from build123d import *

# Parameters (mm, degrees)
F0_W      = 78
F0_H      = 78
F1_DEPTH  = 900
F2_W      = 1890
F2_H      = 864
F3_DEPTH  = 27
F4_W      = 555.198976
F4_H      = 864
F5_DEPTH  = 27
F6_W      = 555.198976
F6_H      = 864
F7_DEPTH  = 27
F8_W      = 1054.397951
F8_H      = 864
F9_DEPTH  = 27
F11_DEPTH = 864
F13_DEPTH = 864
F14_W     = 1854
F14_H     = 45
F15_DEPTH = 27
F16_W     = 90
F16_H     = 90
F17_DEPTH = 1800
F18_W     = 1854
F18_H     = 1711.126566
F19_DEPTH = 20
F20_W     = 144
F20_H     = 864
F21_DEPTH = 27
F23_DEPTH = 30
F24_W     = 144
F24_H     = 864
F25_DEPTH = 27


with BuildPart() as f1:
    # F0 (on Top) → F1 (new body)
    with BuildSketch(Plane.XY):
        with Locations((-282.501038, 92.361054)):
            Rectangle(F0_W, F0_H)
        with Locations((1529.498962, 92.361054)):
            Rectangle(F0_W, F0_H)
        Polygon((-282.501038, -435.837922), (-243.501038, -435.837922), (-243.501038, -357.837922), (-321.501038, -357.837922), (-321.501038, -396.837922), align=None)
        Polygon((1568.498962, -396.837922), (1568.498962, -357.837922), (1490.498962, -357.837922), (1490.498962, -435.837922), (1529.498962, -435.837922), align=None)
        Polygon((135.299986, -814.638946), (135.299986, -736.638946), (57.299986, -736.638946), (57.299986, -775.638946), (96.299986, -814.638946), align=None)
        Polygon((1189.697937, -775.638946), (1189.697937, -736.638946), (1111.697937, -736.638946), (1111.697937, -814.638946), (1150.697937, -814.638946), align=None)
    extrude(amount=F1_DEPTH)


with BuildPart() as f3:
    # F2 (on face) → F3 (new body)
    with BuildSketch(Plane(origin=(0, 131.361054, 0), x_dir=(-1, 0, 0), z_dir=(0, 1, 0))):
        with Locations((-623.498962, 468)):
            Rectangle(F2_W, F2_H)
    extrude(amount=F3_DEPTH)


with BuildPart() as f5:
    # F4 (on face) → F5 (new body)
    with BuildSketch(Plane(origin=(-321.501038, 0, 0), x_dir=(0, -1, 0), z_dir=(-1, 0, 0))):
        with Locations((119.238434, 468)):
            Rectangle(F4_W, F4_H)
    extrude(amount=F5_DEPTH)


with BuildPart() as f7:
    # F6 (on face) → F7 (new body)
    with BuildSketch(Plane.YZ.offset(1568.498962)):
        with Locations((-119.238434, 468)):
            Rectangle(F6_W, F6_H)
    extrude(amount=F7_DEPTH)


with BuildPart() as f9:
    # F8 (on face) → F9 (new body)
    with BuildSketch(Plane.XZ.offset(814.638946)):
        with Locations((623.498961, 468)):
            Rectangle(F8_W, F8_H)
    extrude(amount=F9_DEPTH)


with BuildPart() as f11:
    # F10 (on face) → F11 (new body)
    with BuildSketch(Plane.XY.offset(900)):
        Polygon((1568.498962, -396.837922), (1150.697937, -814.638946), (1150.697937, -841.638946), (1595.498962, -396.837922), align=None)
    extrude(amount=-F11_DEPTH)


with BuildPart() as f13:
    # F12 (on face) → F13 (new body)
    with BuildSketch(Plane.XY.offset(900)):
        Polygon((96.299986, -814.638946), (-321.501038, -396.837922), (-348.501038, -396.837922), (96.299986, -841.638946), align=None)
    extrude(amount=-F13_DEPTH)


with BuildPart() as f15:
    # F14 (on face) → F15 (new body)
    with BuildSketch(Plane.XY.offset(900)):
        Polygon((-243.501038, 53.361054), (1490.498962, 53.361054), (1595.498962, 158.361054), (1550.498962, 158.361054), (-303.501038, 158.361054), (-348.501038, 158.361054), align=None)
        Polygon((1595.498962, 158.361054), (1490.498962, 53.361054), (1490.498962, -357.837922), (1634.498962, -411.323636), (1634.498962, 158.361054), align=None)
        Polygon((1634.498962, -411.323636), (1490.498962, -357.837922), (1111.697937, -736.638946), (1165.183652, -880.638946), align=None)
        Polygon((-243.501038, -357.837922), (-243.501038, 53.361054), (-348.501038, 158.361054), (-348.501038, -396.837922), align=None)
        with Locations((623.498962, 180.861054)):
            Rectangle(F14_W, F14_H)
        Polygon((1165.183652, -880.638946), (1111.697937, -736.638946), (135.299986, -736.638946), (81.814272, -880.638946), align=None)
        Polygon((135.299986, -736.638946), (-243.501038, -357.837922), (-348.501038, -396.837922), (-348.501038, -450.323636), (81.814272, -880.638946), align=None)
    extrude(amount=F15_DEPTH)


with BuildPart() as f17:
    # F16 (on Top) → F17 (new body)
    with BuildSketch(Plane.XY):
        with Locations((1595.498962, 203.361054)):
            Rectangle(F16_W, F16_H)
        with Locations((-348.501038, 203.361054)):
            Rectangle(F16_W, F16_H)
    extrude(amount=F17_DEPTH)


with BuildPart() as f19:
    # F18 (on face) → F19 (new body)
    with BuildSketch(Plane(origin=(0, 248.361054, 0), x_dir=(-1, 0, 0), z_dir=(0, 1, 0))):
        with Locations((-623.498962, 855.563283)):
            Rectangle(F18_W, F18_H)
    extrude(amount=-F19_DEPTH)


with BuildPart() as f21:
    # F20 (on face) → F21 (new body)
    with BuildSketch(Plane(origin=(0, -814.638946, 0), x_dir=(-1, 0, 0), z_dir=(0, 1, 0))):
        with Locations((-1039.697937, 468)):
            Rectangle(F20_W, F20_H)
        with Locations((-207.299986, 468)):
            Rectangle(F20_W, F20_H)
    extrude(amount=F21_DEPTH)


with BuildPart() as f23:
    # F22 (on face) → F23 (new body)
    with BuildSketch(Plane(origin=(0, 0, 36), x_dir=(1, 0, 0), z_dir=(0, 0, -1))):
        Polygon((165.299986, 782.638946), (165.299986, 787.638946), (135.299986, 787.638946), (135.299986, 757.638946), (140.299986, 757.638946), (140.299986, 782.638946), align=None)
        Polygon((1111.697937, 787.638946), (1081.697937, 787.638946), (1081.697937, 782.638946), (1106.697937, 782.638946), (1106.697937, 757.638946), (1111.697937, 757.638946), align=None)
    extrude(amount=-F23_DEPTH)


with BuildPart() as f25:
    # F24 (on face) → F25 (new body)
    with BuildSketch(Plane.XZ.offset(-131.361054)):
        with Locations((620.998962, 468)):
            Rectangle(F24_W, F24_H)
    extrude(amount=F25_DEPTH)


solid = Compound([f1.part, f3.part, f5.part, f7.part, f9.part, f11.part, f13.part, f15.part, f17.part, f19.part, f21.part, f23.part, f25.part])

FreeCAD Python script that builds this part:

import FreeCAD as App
import Part
import Sketcher
from FreeCAD import Vector
Q = App.Units.Quantity


def add_polygon(sketch, points):
    """Adds a closed chain of lines whose ends are joined by coincident constraints."""
    first, n = sketch.GeometryCount, len(points)
    for a, b in zip(points, points[1:] + points[:1]):
        sketch.addGeometry(Part.LineSegment(App.Vector(*a, 0), App.Vector(*b, 0)), False)
    for i in range(n):
        sketch.addConstraint(Sketcher.Constraint("Coincident", first + i, 2, first + (i + 1) % n, 1))

doc = App.newDocument("Part")
params = doc.addObject("Spreadsheet::Sheet", "Params")
for row, (alias, value) in enumerate([
    ("sketch1_width", "78 mm"),
    ("sketch1_width2", "39 mm"),
    ("pad1_length", "900 mm"),
    ("sketch2_width", "1890 mm"),
    ("sketch2_height", "864 mm"),
    ("pad2_length", "27 mm"),
    ("sketch3_height", "864 mm"),
    ("pad3_length", "27 mm"),
    ("sketch4_height", "864 mm"),
    ("pad4_length", "27 mm"),
    ("sketch5_height", "864 mm"),
    ("pad5_length", "27 mm"),
    ("sketch6_width", "27 mm"),
    ("pad6_length", "864 mm"),
    ("sketch7_width", "27 mm"),
    ("pad7_length", "864 mm"),
    ("sketch8_width", "84 mm"),
    ("sketch8_width2", "1854 mm"),
    ("sketch8_width3", "45 mm"),
    ("sketch8_width4", "1734 mm"),
    ("pad8_length", "27 mm"),
    ("sketch9_width", "90 mm"),
    ("pad9_length", "1800 mm"),
    ("sketch10_width", "1854 mm"),
    ("pad10_length", "20 mm"),
    ("sketch11_width", "144 mm"),
    ("sketch11_height", "864 mm"),
    ("pad11_length", "27 mm"),
    ("sketch12_width", "30 mm"),
    ("sketch12_width2", "5 mm"),
    ("pad12_length", "30 mm"),
    ("sketch13_width", "144 mm"),
    ("sketch13_height", "864 mm"),
    ("pad13_length", "27 mm"),
], start=1):
    params.set(f"A{row}", alias)
    params.set(f"B{row}", "=" + value)
    params.setAlias(f"B{row}", alias)

body = doc.addObject("PartDesign::Body", "Body")
body.AllowCompound = True

# Sketch on XY plane
sketch1 = doc.addObject("Sketcher::SketchObject", "Sketch")
body.addObject(sketch1)
sketch1.AttachmentSupport = (doc.XY_Plane, [""])
sketch1.MapMode = "FlatFace"
add_polygon(sketch1, [(-321.501038, 131.361054), (-321.501038, 53.361054), (-243.501038, 53.361054), (-243.501038, 131.361054)])  # lines 0-3
add_polygon(sketch1, [(1490.498962, 131.361054), (1490.498962, 53.361054), (1568.498962, 53.361054), (1568.498962, 131.361054)])  # lines 4-7
add_polygon(sketch1, [(-282.501038, -435.837922), (-243.501038, -435.837922), (-243.501038, -357.837922), (-321.501038, -357.837922), (-321.501038, -396.837922)])  # lines 8-12
add_polygon(sketch1, [(1568.498962, -396.837922), (1568.498962, -357.837922), (1490.498962, -357.837922), (1490.498962, -435.837922), (1529.498962, -435.837922)])  # lines 13-17
add_polygon(sketch1, [(135.299986, -814.638946), (135.299986, -736.638946), (57.299986, -736.638946), (57.299986, -775.638946), (96.299986, -814.638946)])  # lines 18-22
add_polygon(sketch1, [(1189.697937, -775.638946), (1189.697937, -736.638946), (1111.697937, -736.638946), (1111.697937, -814.638946), (1150.697937, -814.638946)])  # lines 23-27
sketch1.addConstraint(Sketcher.Constraint("Vertical", 0))
sketch1.addConstraint(Sketcher.Constraint("Horizontal", 1))
sketch1.addConstraint(Sketcher.Constraint("Vertical", 2))
sketch1.addConstraint(Sketcher.Constraint("Horizontal", 3))
sketch1.addConstraint(Sketcher.Constraint("Vertical", 4))
sketch1.addConstraint(Sketcher.Constraint("Horizontal", 5))
sketch1.addConstraint(Sketcher.Constraint("Vertical", 6))
sketch1.addConstraint(Sketcher.Constraint("Horizontal", 7))
sketch1.addConstraint(Sketcher.Constraint("Horizontal", 8))
sketch1.addConstraint(Sketcher.Constraint("Vertical", 9))
sketch1.addConstraint(Sketcher.Constraint("Horizontal", 10))
sketch1.addConstraint(Sketcher.Constraint("Vertical", 11))
sketch1.addConstraint(Sketcher.Constraint("Vertical", 13))
sketch1.addConstraint(Sketcher.Constraint("Horizontal", 14))
sketch1.addConstraint(Sketcher.Constraint("Vertical", 15))
sketch1.addConstraint(Sketcher.Constraint("Horizontal", 16))
sketch1.addConstraint(Sketcher.Constraint("Vertical", 18))
sketch1.addConstraint(Sketcher.Constraint("Horizontal", 19))
sketch1.addConstraint(Sketcher.Constraint("Vertical", 20))
sketch1.addConstraint(Sketcher.Constraint("Horizontal", 22))
sketch1.addConstraint(Sketcher.Constraint("Vertical", 23))
sketch1.addConstraint(Sketcher.Constraint("Horizontal", 24))
sketch1.addConstraint(Sketcher.Constraint("Vertical", 25))
sketch1.addConstraint(Sketcher.Constraint("Horizontal", 26))
sketch1.addConstraint(Sketcher.Constraint("Perpendicular", 12, 17))
sketch1.addConstraint(Sketcher.Constraint("Perpendicular", 17, 21))
sketch1.addConstraint(Sketcher.Constraint("Perpendicular", 21, 27))
sketch1.addConstraint(Sketcher.Constraint("Horizontal", 1, 2, 4, 2))
sketch1.addConstraint(Sketcher.Constraint("Horizontal", 3, 2, 6, 2))
sketch1.addConstraint(Sketcher.Constraint("Horizontal", 10, 2, 13, 2))
sketch1.addConstraint(Sketcher.Constraint("Horizontal", 12, 2, 15, 2))
sketch1.addConstraint(Sketcher.Constraint("Horizontal", 11, 2, 17, 2))
sketch1.addConstraint(Sketcher.Constraint("Horizontal", 19, 2, 23, 2))
sketch1.addConstraint(Sketcher.Constraint("Horizontal", 22, 2, 25, 2))
sketch1.addConstraint(Sketcher.Constraint("Horizontal", 20, 2, 27, 2))
sketch1.addConstraint(Sketcher.Constraint("Vertical", 2, 2, 8, 2))
sketch1.addConstraint(Sketcher.Constraint("Vertical", 3, 2, 10, 2))
sketch1.addConstraint(Sketcher.Constraint("Vertical", 6, 2, 13, 2))
sketch1.addConstraint(Sketcher.Constraint("Vertical", 7, 2, 14, 2))
sketch1.addConstraint(Sketcher.Constraint("Equal", 3, 5))
sketch1.addConstraint(Sketcher.Constraint("Equal", 8, 16))
sketch1.addConstraint(Sketcher.Constraint("Equal", 14, 19))
sketch1.addConstraint(Sketcher.Constraint("Equal", 16, 22))
sketch1.addConstraint(Sketcher.Constraint("Equal", 19, 24))
sketch1.addConstraint(Sketcher.Constraint("Equal", 24, 0))
sketch1.addConstraint(Sketcher.Constraint("Equal", 6, 9))
sketch1.addConstraint(Sketcher.Constraint("Equal", 15, 18))
sketch1.addConstraint(Sketcher.Constraint("DistanceX", 1, 1, 1, 2, Q("78 mm")))
sketch1.addConstraint(Sketcher.Constraint("DistanceX", 8, 1, 8, 2, Q("39 mm")))
sketch1.addConstraint(Sketcher.Constraint("DistanceX", 1, 2, 4, 2, Q("1734 mm")))
sketch1.addConstraint(Sketcher.Constraint("DistanceX", 0, 2, -1, 1, Q("321.501038 mm")))
sketch1.addConstraint(Sketcher.Constraint("DistanceY", 8, 2, -1, 1, Q("435.837922 mm")))
sketch1.addConstraint(Sketcher.Constraint("DistanceY", -1, 1, 0, 2, Q("53.361054 mm")))
sketch1.addConstraint(Sketcher.Constraint("DistanceX", -1, 1, 18, 2, Q("135.299986 mm")))
sketch1.addConstraint(Sketcher.Constraint("DistanceY", 18, 2, -1, 1, Q("736.638946 mm")))
sketch1.addConstraint(Sketcher.Constraint("DistanceX", -1, 1, 23, 2, Q("1189.697937 mm")))
sketch1.setExpression("Constraints[75]", "Params.sketch1_width")
sketch1.setExpression("Constraints[76]", "Params.sketch1_width2")
pad1 = doc.addObject("PartDesign::Pad", "Pad")
body.addObject(pad1)
pad1.Profile = sketch1
pad1.setExpression("Length", "Params.pad1_length")
body2 = doc.addObject("PartDesign::Body", "Body001")

# Sketch on XZ plane
sketch2 = doc.addObject("Sketcher::SketchObject", "Sketch001")
body2.addObject(sketch2)
sketch2.AttachmentSupport = (doc.getObject("XZ_Plane001"), [""])
sketch2.MapMode = "FlatFace"
sketch2.AttachmentOffset = App.Placement(Vector(0, 0, -131.361054), App.Rotation())
add_polygon(sketch2, [(1568.498962, 900), (1568.498962, 36), (-321.501038, 36), (-321.501038, 900)])  # lines 0-3
sketch2.addConstraint(Sketcher.Constraint("Vertical", 0))
sketch2.addConstraint(Sketcher.Constraint("Horizontal", 1))
sketch2.addConstraint(Sketcher.Constraint("Vertical", 2))
sketch2.addConstraint(Sketcher.Constraint("Horizontal", 3))
sketch2.addConstraint(Sketcher.Constraint("DistanceX", 1, 2, 1, 1, Q("1890 mm")))
sketch2.addConstraint(Sketcher.Constraint("DistanceY", 0, 2, 0, 1, Q("864 mm")))
sketch2.addConstraint(Sketcher.Constraint("DistanceY", -1, 1, 0, 2, Q("36 mm")))
sketch2.addConstraint(Sketcher.Constraint("DistanceX", -1, 1, 0, 2, Q("1568.498962 mm")))
sketch2.setExpression("Constraints[8]", "Params.sketch2_width")
sketch2.setExpression("Constraints[9]", "Params.sketch2_height")
pad2 = doc.addObject("PartDesign::Pad", "Pad001")
body2.addObject(pad2)
pad2.Profile = sketch2
pad2.setExpression("Length", "Params.pad2_length")
pad2.Reversed = True
body3 = doc.addObject("PartDesign::Body", "Body002")

# Sketch on YZ plane
sketch3 = doc.addObject("Sketcher::SketchObject", "Sketch002")
body3.addObject(sketch3)
sketch3.AttachmentSupport = (doc.getObject("YZ_Plane002"), [""])
sketch3.MapMode = "FlatFace"
sketch3.AttachmentOffset = App.Placement(Vector(0, 0, -321.501038), App.Rotation())
add_polygon(sketch3, [(158.361054, 900), (158.361054, 36), (-396.837922, 36), (-396.837922, 900)])  # lines 0-3
sketch3.addConstraint(Sketcher.Constraint("Vertical", 0))
sketch3.addConstraint(Sketcher.Constraint("Horizontal", 1))
sketch3.addConstraint(Sketcher.Constraint("Vertical", 2))
sketch3.addConstraint(Sketcher.Constraint("Horizontal", 3))
sketch3.addConstraint(Sketcher.Constraint("DistanceY", 0, 2, 0, 1, Q("864 mm")))
sketch3.addConstraint(Sketcher.Constraint("DistanceY", -1, 1, 0, 2, Q("36 mm")))
sketch3.addConstraint(Sketcher.Constraint("DistanceX", 1, 2, 1, 1, Q("555.198976 mm")))
sketch3.addConstraint(Sketcher.Constraint("DistanceX", 1, 2, -1, 1, Q("396.837922 mm")))
sketch3.setExpression("Constraints[8]", "Params.sketch3_height")
pad3 = doc.addObject("PartDesign::Pad", "Pad002")
body3.addObject(pad3)
pad3.Profile = sketch3
pad3.setExpression("Length", "Params.pad3_length")
pad3.Reversed = True
body4 = doc.addObject("PartDesign::Body", "Body003")

# Sketch on YZ plane
sketch4 = doc.addObject("Sketcher::SketchObject", "Sketch003")
body4.addObject(sketch4)
sketch4.AttachmentSupport = (doc.getObject("YZ_Plane003"), [""])
sketch4.MapMode = "FlatFace"
sketch4.AttachmentOffset = App.Placement(Vector(0, 0, 1568.498962), App.Rotation())
add_polygon(sketch4, [(-396.837922, 900), (-396.837922, 36), (158.361054, 36), (158.361054, 900)])  # lines 0-3
sketch4.addConstraint(Sketcher.Constraint("Vertical", 0))
sketch4.addConstraint(Sketcher.Constraint("Horizontal", 1))
sketch4.addConstraint(Sketcher.Constraint("Vertical", 2))
sketch4.addConstraint(Sketcher.Constraint("Horizontal", 3))
sketch4.addConstraint(Sketcher.Constraint("DistanceY", 0, 2, 0, 1, Q("864 mm")))
sketch4.addConstraint(Sketcher.Constraint("DistanceY", -1, 1, 0, 2, Q("36 mm")))
sketch4.addConstraint(Sketcher.Constraint("DistanceX", 1, 1, 1, 2, Q("555.198976 mm")))
sketch4.addConstraint(Sketcher.Constraint("DistanceX", 0, 2, -1, 1, Q("396.837922 mm")))
sketch4.setExpression("Constraints[8]", "Params.sketch4_height")
pad4 = doc.addObject("PartDesign::Pad", "Pad003")
body4.addObject(pad4)
pad4.Profile = sketch4
pad4.setExpression("Length", "Params.pad4_length")
body5 = doc.addObject("PartDesign::Body", "Body004")

# Sketch on XZ plane
sketch5 = doc.addObject("Sketcher::SketchObject", "Sketch004")
body5.addObject(sketch5)
sketch5.AttachmentSupport = (doc.getObject("XZ_Plane004"), [""])
sketch5.MapMode = "FlatFace"
sketch5.AttachmentOffset = App.Placement(Vector(0, 0, 814.638946), App.Rotation())
add_polygon(sketch5, [(96.299986, 900), (96.299986, 36), (1150.697936, 36), (1150.697936, 900)])  # lines 0-3
sketch5.addConstraint(Sketcher.Constraint("Vertical", 0))
sketch5.addConstraint(Sketcher.Constraint("Horizontal", 1))
sketch5.addConstraint(Sketcher.Constraint("Vertical", 2))
sketch5.addConstraint(Sketcher.Constraint("Horizontal", 3))
sketch5.addConstraint(Sketcher.Constraint("DistanceY", 0, 2, 0, 1, Q("864 mm")))
sketch5.addConstraint(Sketcher.Constraint("DistanceY", -1, 1, 0, 2, Q("36 mm")))
sketch5.addConstraint(Sketcher.Constraint("DistanceX", 1, 1, 1, 2, Q("1054.397951 mm")))
sketch5.addConstraint(Sketcher.Constraint("DistanceX", -1, 1, 0, 2, Q("96.299986 mm")))
sketch5.setExpression("Constraints[8]", "Params.sketch5_height")
pad5 = doc.addObject("PartDesign::Pad", "Pad004")
body5.addObject(pad5)
pad5.Profile = sketch5
pad5.setExpression("Length", "Params.pad5_length")
body6 = doc.addObject("PartDesign::Body", "Body005")

# Sketch on XY plane
sketch6 = doc.addObject("Sketcher::SketchObject", "Sketch005")
body6.addObject(sketch6)
sketch6.AttachmentSupport = (doc.getObject("XY_Plane005"), [""])
sketch6.MapMode = "FlatFace"
sketch6.AttachmentOffset = App.Placement(Vector(0, 0, 900), App.Rotation())
add_polygon(sketch6, [(1568.498962, -396.837922), (1150.697937, -814.638946), (1150.697937, -841.638946), (1595.498962, -396.837922)])  # lines 0-3
sketch6.addConstraint(Sketcher.Constraint("Vertical", 1))
sketch6.addConstraint(Sketcher.Constraint("Horizontal", 3))
sketch6.addConstraint(Sketcher.Constraint("Parallel", 0, 2))
sketch6.addConstraint(Sketcher.Constraint("Equal", 3, 1))
sketch6.addConstraint(Sketcher.Constraint("DistanceX", 3, 2, 3, 1, Q("27 mm")))
sketch6.addConstraint(Sketcher.Constraint("Distance", 2, Q("629.043641 mm")))
sketch6.addConstraint(Sketcher.Constraint("DistanceX", -1, 1, 2, 2, Q("1595.498962 mm")))
sketch6.addConstraint(Sketcher.Constraint("DistanceY", 2, 2, -1, 1, Q("396.837922 mm")))
sketch6.setExpression("Constraints[8]", "Params.sketch6_width")
pad6 = doc.addObject("PartDesign::Pad", "Pad005")
body6.addObject(pad6)
pad6.Profile = sketch6
pad6.setExpression("Length", "Params.pad6_length")
pad6.Reversed = True
body7 = doc.addObject("PartDesign::Body", "Body006")

# Sketch on XY plane
sketch7 = doc.addObject("Sketcher::SketchObject", "Sketch006")
body7.addObject(sketch7)
sketch7.AttachmentSupport = (doc.getObject("XY_Plane006"), [""])
sketch7.MapMode = "FlatFace"
sketch7.AttachmentOffset = App.Placement(Vector(0, 0, 900), App.Rotation())
add_polygon(sketch7, [(96.299986, -814.638946), (-321.501038, -396.837922), (-348.501038, -396.837922), (96.299986, -841.638946)])  # lines 0-3
sketch7.addConstraint(Sketcher.Constraint("Horizontal", 1))
sketch7.addConstraint(Sketcher.Constraint("Vertical", 3))
sketch7.addConstraint(Sketcher.Constraint("Parallel", 0, 2))
sketch7.addConstraint(Sketcher.Constraint("Equal", 1, 3))
sketch7.addConstraint(Sketcher.Constraint("DistanceX", 1, 2, 1, 1, Q("27 mm")))
sketch7.addConstraint(Sketcher.Constraint("Distance", 2, Q("629.043641 mm")))
sketch7.addConstraint(Sketcher.Constraint("DistanceX", 0, 2, -1, 1, Q("321.501038 mm")))
sketch7.addConstraint(Sketcher.Constraint("DistanceY", 0, 2, -1, 1, Q("396.837922 mm")))
sketch7.setExpression("Constraints[8]", "Params.sketch7_width")
pad7 = doc.addObject("PartDesign::Pad", "Pad006")
body7.addObject(pad7)
pad7.Profile = sketch7
pad7.setExpression("Length", "Params.pad7_length")
pad7.Reversed = True
body8 = doc.addObject("PartDesign::Body", "Body007")

# Sketch on XY plane
sketch8 = doc.addObject("Sketcher::SketchObject", "Sketch007")
body8.addObject(sketch8)
sketch8.AttachmentSupport = (doc.getObject("XY_Plane007"), [""])
sketch8.MapMode = "FlatFace"
sketch8.AttachmentOffset = App.Placement(Vector(0, 0, 900), App.Rotation())
add_polygon(sketch8, [(81.814272, -880.638946), (1165.183652, -880.638946), (1634.498962, -411.323636), (1634.498962, 158.361054), (1550.498962, 158.361054), (1550.498962, 203.361054), (-303.501038, 203.361054), (-303.501038, 158.361054), (-348.501038, 158.361054), (-348.501038, -450.323636)])  # lines 0-9
add_polygon(sketch8, [(-243.501038, 53.361054), (1490.498962, 53.361054), (1490.498962, -357.837922), (1111.697937, -736.638946), (135.299986, -736.638946), (-243.501038, -357.837922)])  # lines 10-15
sketch8.addConstraint(Sketcher.Constraint("Horizontal", 0))
sketch8.addConstraint(Sketcher.Constraint("Vertical", 2))
sketch8.addConstraint(Sketcher.Constraint("Horizontal", 3))
sketch8.addConstraint(Sketcher.Constraint("Vertical", 4))
sketch8.addConstraint(Sketcher.Constraint("Horizontal", 5))
sketch8.addConstraint(Sketcher.Constraint("Vertical", 6))
sketch8.addConstraint(Sketcher.Constraint("Horizontal", 7))
sketch8.addConstraint(Sketcher.Constraint("Vertical", 8))
sketch8.addConstraint(Sketcher.Constraint("Horizontal", 10))
sketch8.addConstraint(Sketcher.Constraint("Vertical", 11))
sketch8.addConstraint(Sketcher.Constraint("Horizontal", 13))
sketch8.addConstraint(Sketcher.Constraint("Vertical", 15))
sketch8.addConstraint(Sketcher.Constraint("Perpendicular", 1, 9))
sketch8.addConstraint(Sketcher.Constraint("Perpendicular", 9, 12))
sketch8.addConstraint(Sketcher.Constraint("Perpendicular", 12, 14))
sketch8.addConstraint(Sketcher.Constraint("Horizontal", 3, 2, 6, 2))
sketch8.addConstraint(Sketcher.Constraint("Horizontal", 11, 2, 14, 2))
sketch8.addConstraint(Sketcher.Constraint("Equal", 7, 4))
sketch8.addConstraint(Sketcher.Constraint("Equal", 12, 14))
sketch8.addConstraint(Sketcher.Constraint("DistanceX", 3, 2, 3, 1, Q("84 mm")))
sketch8.addConstraint(Sketcher.Constraint("DistanceX", 5, 2, 5, 1, Q("1854 mm")))
sketch8.addConstraint(Sketcher.Constraint("DistanceX", 7, 2, 7, 1, Q("45 mm")))
sketch8.addConstraint(Sketcher.Constraint("DistanceX", 10, 1, 10, 2, Q("1734 mm")))
sketch8.addConstraint(Sketcher.Constraint("DistanceY", 0, 2, 2, 2, Q("1039 mm")))
sketch8.addConstraint(Sketcher.Constraint("DistanceY", 8, 2, 1, 2, Q("39 mm")))
sketch8.addConstraint(Sketcher.Constraint("DistanceX", 10, 2, 3, 2, Q("60 mm")))
sketch8.addConstraint(Sketcher.Constraint("DistanceY", 10, 2, 3, 2, Q("105 mm")))
sketch8.addConstraint(Sketcher.Constraint("DistanceY", 0, 2, 12, 2, Q("144 mm")))
sketch8.addConstraint(Sketcher.Constraint("DistanceX", 0, 1, 0, 2, Q("1083.36938 mm")))
sketch8.addConstraint(Sketcher.Constraint("DistanceX", 13, 2, 13, 1, Q("976.397951 mm")))
sketch8.addConstraint(Sketcher.Constraint("DistanceX", -1, 1, 0, 2, Q("1165.183652 mm")))
sketch8.addConstraint(Sketcher.Constraint("DistanceY", 11, 2, -1, 1, Q("357.837922 mm")))
sketch8.setExpression("Constraints[35]", "Params.sketch8_width")
sketch8.setExpression("Constraints[36]", "Params.sketch8_width2")
sketch8.setExpression("Constraints[37]", "Params.sketch8_width3")
sketch8.setExpression("Constraints[38]", "Params.sketch8_width4")
pad8 = doc.addObject("PartDesign::Pad", "Pad007")
body8.addObject(pad8)
pad8.Profile = sketch8
pad8.setExpression("Length", "Params.pad8_length")
body9 = doc.addObject("PartDesign::Body", "Body008")
body9.AllowCompound = True

# Sketch on XY plane
sketch9 = doc.addObject("Sketcher::SketchObject", "Sketch008")
body9.addObject(sketch9)
sketch9.AttachmentSupport = (doc.getObject("XY_Plane008"), [""])
sketch9.MapMode = "FlatFace"
add_polygon(sketch9, [(1550.498962, 248.361054), (1550.498962, 158.361054), (1640.498962, 158.361054), (1640.498962, 248.361054)])  # lines 0-3
add_polygon(sketch9, [(-393.501038, 248.361054), (-393.501038, 158.361054), (-303.501038, 158.361054), (-303.501038, 248.361054)])  # lines 4-7
sketch9.addConstraint(Sketcher.Constraint("Vertical", 0))
sketch9.addConstraint(Sketcher.Constraint("Horizontal", 1))
sketch9.addConstraint(Sketcher.Constraint("Vertical", 2))
sketch9.addConstraint(Sketcher.Constraint("Horizontal", 3))
sketch9.addConstraint(Sketcher.Constraint("Vertical", 4))
sketch9.addConstraint(Sketcher.Constraint("Horizontal", 5))
sketch9.addConstraint(Sketcher.Constraint("Vertical", 6))
sketch9.addConstraint(Sketcher.Constraint("Horizontal", 7))
sketch9.addConstraint(Sketcher.Constraint("Horizontal", 1, 2, 4, 2))
sketch9.addConstraint(Sketcher.Constraint("Horizontal", 3, 2, 6, 2))
sketch9.addConstraint(Sketcher.Constraint("Equal", 3, 5))
sketch9.addConstraint(Sketcher.Constraint("Equal", 7, 0))
sketch9.addConstraint(Sketcher.Constraint("DistanceX", 1, 1, 1, 2, Q("90 mm")))
sketch9.addConstraint(Sketcher.Constraint("DistanceX", 4, 2, 0, 2, Q("1944 mm")))
sketch9.addConstraint(Sketcher.Constraint("DistanceX", -1, 1, 0, 2, Q("1550.498962 mm")))
sketch9.addConstraint(Sketcher.Constraint("DistanceY", -1, 1, 0, 2, Q("158.361054 mm")))
sketch9.setExpression("Constraints[20]", "Params.sketch9_width")
pad9 = doc.addObject("PartDesign::Pad", "Pad008")
body9.addObject(pad9)
pad9.Profile = sketch9
pad9.setExpression("Length", "Params.pad9_length")
body10 = doc.addObject("PartDesign::Body", "Body009")

# Sketch on XZ plane
sketch10 = doc.addObject("Sketcher::SketchObject", "Sketch009")
body10.addObject(sketch10)
sketch10.AttachmentSupport = (doc.getObject("XZ_Plane009"), [""])
sketch10.MapMode = "FlatFace"
sketch10.AttachmentOffset = App.Placement(Vector(0, 0, -248.361054), App.Rotation())
add_polygon(sketch10, [(1550.498962, 1711.126566), (1550.498962, 0), (-303.501038, 0), (-303.501038, 1711.126566)])  # lines 0-3
sketch10.addConstraint(Sketcher.Constraint("Vertical", 0))
sketch10.addConstraint(Sketcher.Constraint("Horizontal", 1))
sketch10.addConstraint(Sketcher.Constraint("Vertical", 2))
sketch10.addConstraint(Sketcher.Constraint("Horizontal", 3))
sketch10.addConstraint(Sketcher.Constraint("PointOnObject", 0, 2, -1))
sketch10.addConstraint(Sketcher.Constraint("DistanceX", 1, 2, 1, 1, Q("1854 mm")))
sketch10.addConstraint(Sketcher.Constraint("DistanceY", 0, 2, 0, 1, Q("1711.126566 mm")))
sketch10.addConstraint(Sketcher.Constraint("DistanceX", -1, 1, 0, 2, Q("1550.498962 mm")))
sketch10.setExpression("Constraints[9]", "Params.sketch10_width")
pad10 = doc.addObject("PartDesign::Pad", "Pad009")
body10.addObject(pad10)
pad10.Profile = sketch10
pad10.setExpression("Length", "Params.pad10_length")
body11 = doc.addObject("PartDesign::Body", "Body010")
body11.AllowCompound = True

# Sketch on XZ plane
sketch11 = doc.addObject("Sketcher::SketchObject", "Sketch010")
body11.addObject(sketch11)
sketch11.AttachmentSupport = (doc.getObject("XZ_Plane010"), [""])
sketch11.MapMode = "FlatFace"
sketch11.AttachmentOffset = App.Placement(Vector(0, 0, 814.638946), App.Rotation())
add_polygon(sketch11, [(1111.697937, 900), (1111.697937, 36), (967.697937, 36), (967.697937, 900)])  # lines 0-3
add_polygon(sketch11, [(279.299986, 900), (279.299986, 36), (135.299986, 36), (135.299986, 900)])  # lines 4-7
sketch11.addConstraint(Sketcher.Constraint("Vertical", 0))
sketch11.addConstraint(Sketcher.Constraint("Horizontal", 1))
sketch11.addConstraint(Sketcher.Constraint("Vertical", 2))
sketch11.addConstraint(Sketcher.Constraint("Horizontal", 3))
sketch11.addConstraint(Sketcher.Constraint("Vertical", 4))
sketch11.addConstraint(Sketcher.Constraint("Horizontal", 5))
sketch11.addConstraint(Sketcher.Constraint("Vertical", 6))
sketch11.addConstraint(Sketcher.Constraint("Horizontal", 7))
sketch11.addConstraint(Sketcher.Constraint("Horizontal", 1, 2, 4, 2))
sketch11.addConstraint(Sketcher.Constraint("Horizontal", 3, 2, 6, 2))
sketch11.addConstraint(Sketcher.Constraint("Equal", 3, 5))
sketch11.addConstraint(Sketcher.Constraint("DistanceX", 1, 2, 1, 1, Q("144 mm")))
sketch11.addConstraint(Sketcher.Constraint("DistanceY", 0, 2, 0, 1, Q("864 mm")))
sketch11.addConstraint(Sketcher.Constraint("DistanceY", -1, 1, 0, 2, Q("36 mm")))
sketch11.addConstraint(Sketcher.Constraint("DistanceX", 4, 2, 1, 2, Q("688.397951 mm")))
sketch11.addConstraint(Sketcher.Constraint("DistanceX", -1, 1, 0, 2, Q("1111.697937 mm")))
sketch11.setExpression("Constraints[19]", "Params.sketch11_width")
sketch11.setExpression("Constraints[20]", "Params.sketch11_height")
pad11 = doc.addObject("PartDesign::Pad", "Pad010")
body11.addObject(pad11)
pad11.Profile = sketch11
pad11.setExpression("Length", "Params.pad11_length")
pad11.Reversed = True
body12 = doc.addObject("PartDesign::Body", "Body011")
body12.AllowCompound = True

# Sketch on XY plane
sketch12 = doc.addObject("Sketcher::SketchObject", "Sketch011")
body12.addObject(sketch12)
sketch12.AttachmentSupport = (doc.getObject("XY_Plane011"), [""])
sketch12.MapMode = "FlatFace"
sketch12.AttachmentOffset = App.Placement(Vector(0, 0, 36), App.Rotation())
add_polygon(sketch12, [(165.299986, -782.638946), (165.299986, -787.638946), (135.299986, -787.638946), (135.299986, -757.638946), (140.299986, -757.638946), (140.299986, -782.638946)])  # lines 0-5
add_polygon(sketch12, [(1111.697937, -787.638946), (1081.697937, -787.638946), (1081.697937, -782.638946), (1106.697937, -782.638946), (1106.697937, -757.638946), (1111.697937, -757.638946)])  # lines 6-11
sketch12.addConstraint(Sketcher.Constraint("Vertical", 0))
sketch12.addConstraint(Sketcher.Constraint("Horizontal", 1))
sketch12.addConstraint(Sketcher.Constraint("Vertical", 2))
sketch12.addConstraint(Sketcher.Constraint("Horizontal", 3))
sketch12.addConstraint(Sketcher.Constraint("Vertical", 4))
sketch12.addConstraint(Sketcher.Constraint("Horizontal", 5))
sketch12.addConstraint(Sketcher.Constraint("Horizontal", 6))
sketch12.addConstraint(Sketcher.Constraint("Vertical", 7))
sketch12.addConstraint(Sketcher.Constraint("Horizontal", 8))
sketch12.addConstraint(Sketcher.Constraint("Vertical", 9))
sketch12.addConstraint(Sketcher.Constraint("Horizontal", 10))
sketch12.addConstraint(Sketcher.Constraint("Vertical", 11))
sketch12.addConstraint(Sketcher.Constraint("Horizontal", 1, 2, 6, 2))
sketch12.addConstraint(Sketcher.Constraint("Horizontal", 5, 2, 7, 2))
sketch12.addConstraint(Sketcher.Constraint("Horizontal", 3, 2, 9, 2))
sketch12.addConstraint(Sketcher.Constraint("Equal", 1, 6))
sketch12.addConstraint(Sketcher.Constraint("Equal", 5, 8))
sketch12.addConstraint(Sketcher.Constraint("Equal", 10, 0))
sketch12.addConstraint(Sketcher.Constraint("Equal", 6, 2))
sketch12.addConstraint(Sketcher.Constraint("DistanceX", 1, 2, 1, 1, Q("30 mm")))
sketch12.addConstraint(Sketcher.Constraint("DistanceX", 3, 1, 3, 2, Q("5 mm")))
sketch12.addConstraint(Sketcher.Constraint("DistanceX", 0, 2, 6, 2, Q("916.397951 mm")))
sketch12.addConstraint(Sketcher.Constraint("DistanceX", -1, 1, 0, 2, Q("165.299986 mm")))
sketch12.addConstraint(Sketcher.Constraint("DistanceY", 0, 2, -1, 1, Q("787.638946 mm")))
sketch12.setExpression("Constraints[31]", "Params.sketch12_width")
sketch12.setExpression("Constraints[32]", "Params.sketch12_width2")
pad12 = doc.addObject("PartDesign::Pad", "Pad011")
body12.addObject(pad12)
pad12.Profile = sketch12
pad12.setExpression("Length", "Params.pad12_length")
body13 = doc.addObject("PartDesign::Body", "Body012")

# Sketch on XZ plane
sketch13 = doc.addObject("Sketcher::SketchObject", "Sketch012")
body13.addObject(sketch13)
sketch13.AttachmentSupport = (doc.getObject("XZ_Plane012"), [""])
sketch13.MapMode = "FlatFace"
sketch13.AttachmentOffset = App.Placement(Vector(0, 0, -131.361054), App.Rotation())
add_polygon(sketch13, [(548.998962, 900), (548.998962, 36), (692.998962, 36), (692.998962, 900)])  # lines 0-3
sketch13.addConstraint(Sketcher.Constraint("Vertical", 0))
sketch13.addConstraint(Sketcher.Constraint("Horizontal", 1))
sketch13.addConstraint(Sketcher.Constraint("Vertical", 2))
sketch13.addConstraint(Sketcher.Constraint("Horizontal", 3))
sketch13.addConstraint(Sketcher.Constraint("DistanceX", 1, 1, 1, 2, Q("144 mm")))
sketch13.addConstraint(Sketcher.Constraint("DistanceY", 0, 2, 0, 1, Q("864 mm")))
sketch13.addConstraint(Sketcher.Constraint("DistanceY", -1, 1, 0, 2, Q("36 mm")))
sketch13.addConstraint(Sketcher.Constraint("DistanceX", -1, 1, 0, 2, Q("548.998962 mm")))
sketch13.setExpression("Constraints[8]", "Params.sketch13_width")
sketch13.setExpression("Constraints[9]", "Params.sketch13_height")
pad13 = doc.addObject("PartDesign::Pad", "Pad012")
body13.addObject(pad13)
pad13.Profile = sketch13
pad13.setExpression("Length", "Params.pad13_length")

doc.recompute()
